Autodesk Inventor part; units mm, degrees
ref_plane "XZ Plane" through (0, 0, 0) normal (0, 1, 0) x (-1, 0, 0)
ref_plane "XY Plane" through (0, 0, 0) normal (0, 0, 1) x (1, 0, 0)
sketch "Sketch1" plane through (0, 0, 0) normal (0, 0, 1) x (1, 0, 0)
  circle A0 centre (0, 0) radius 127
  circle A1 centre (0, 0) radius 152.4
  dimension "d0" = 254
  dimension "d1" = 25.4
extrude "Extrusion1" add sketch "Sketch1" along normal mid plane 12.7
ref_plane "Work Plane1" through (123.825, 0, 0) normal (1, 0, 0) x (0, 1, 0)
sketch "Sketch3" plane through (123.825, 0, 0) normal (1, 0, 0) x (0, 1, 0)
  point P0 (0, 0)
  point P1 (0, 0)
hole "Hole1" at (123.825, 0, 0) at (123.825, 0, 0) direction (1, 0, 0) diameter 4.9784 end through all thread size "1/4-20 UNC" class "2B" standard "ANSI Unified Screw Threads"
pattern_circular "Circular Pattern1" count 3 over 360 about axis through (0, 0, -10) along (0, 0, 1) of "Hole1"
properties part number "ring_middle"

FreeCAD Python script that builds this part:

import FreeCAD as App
import Part
import Sketcher

V = App.Vector
Q = App.Units.Quantity

doc = App.newDocument("Part")
body = doc.addObject("PartDesign::Body", "Body")

# Sketch on XY plane
sketch1 = body.newObject("Sketcher::SketchObject", "Sketch")
sketch1.AttachmentSupport = (doc.getObject("XY_Plane"), [""])
sketch1.MapMode = "FlatFace"
sketch1.addGeometry([
    Part.Circle(V(0, 0, 0), V(0, 0, 1), 152),
    Part.Circle(V(0, 0, 0), V(0, 0, 1), 127),
], False)
sketch1.addConstraint([
    Sketcher.Constraint("Coincident", 0, 3, -1, 1),
    Sketcher.Constraint("Coincident", 1, 3, -1, 1),
    Sketcher.Constraint("Diameter", 1, Q("10 in")),
    Sketcher.Constraint("Diameter", 0, Q("12 in")),
])
pad1 = body.newObject("PartDesign::Pad", "Pad")
pad1.Profile = sketch1
pad1.Length = Q("0.5 in")
pad1.Midplane = True

# Sketch on YZ plane
sketch2 = body.newObject("Sketcher::SketchObject", "Sketch001")
sketch2.AttachmentSupport = (doc.getObject("YZ_Plane"), [""])
sketch2.MapMode = "FlatFace"
sketch2.AttachmentOffset = App.Placement(V(0, 0, 4.875 * 25.4), App.Rotation())
sketch2.addGeometry([
    Part.Circle(V(0, 0, 0), V(0, 0, 1), 2.5),
    Part.Circle(V(0, 0, 0), V(0, 0, 1), 2.5),
], False)
sketch2.addConstraint([
    Sketcher.Constraint("Coincident", 0, 3, -1, 1),
    Sketcher.Constraint("Coincident", 1, 3, -1, 1),
    Sketcher.Constraint("Equal", 0, 1),
    Sketcher.Constraint("Diameter", 0, Q("0.196 in")),
])
doc.recompute()
hole = body.newObject("PartDesign::Hole", "Hole")
hole.Profile = sketch2
hole.ThreadType = "None"
hole.Diameter = Q("0.196 in")
hole.DepthType = "ThroughAll"
hole.Reversed = True
doc.recompute()

polarpattern = body.newObject("PartDesign::PolarPattern", "PolarPattern")
polarpattern.Originals = [hole]
polarpattern.Axis = (doc.getObject("Z_Axis"), [""])
polarpattern.Angle = 360
polarpattern.Occurrences = 3
body.Tip = polarpattern

doc.recompute()
